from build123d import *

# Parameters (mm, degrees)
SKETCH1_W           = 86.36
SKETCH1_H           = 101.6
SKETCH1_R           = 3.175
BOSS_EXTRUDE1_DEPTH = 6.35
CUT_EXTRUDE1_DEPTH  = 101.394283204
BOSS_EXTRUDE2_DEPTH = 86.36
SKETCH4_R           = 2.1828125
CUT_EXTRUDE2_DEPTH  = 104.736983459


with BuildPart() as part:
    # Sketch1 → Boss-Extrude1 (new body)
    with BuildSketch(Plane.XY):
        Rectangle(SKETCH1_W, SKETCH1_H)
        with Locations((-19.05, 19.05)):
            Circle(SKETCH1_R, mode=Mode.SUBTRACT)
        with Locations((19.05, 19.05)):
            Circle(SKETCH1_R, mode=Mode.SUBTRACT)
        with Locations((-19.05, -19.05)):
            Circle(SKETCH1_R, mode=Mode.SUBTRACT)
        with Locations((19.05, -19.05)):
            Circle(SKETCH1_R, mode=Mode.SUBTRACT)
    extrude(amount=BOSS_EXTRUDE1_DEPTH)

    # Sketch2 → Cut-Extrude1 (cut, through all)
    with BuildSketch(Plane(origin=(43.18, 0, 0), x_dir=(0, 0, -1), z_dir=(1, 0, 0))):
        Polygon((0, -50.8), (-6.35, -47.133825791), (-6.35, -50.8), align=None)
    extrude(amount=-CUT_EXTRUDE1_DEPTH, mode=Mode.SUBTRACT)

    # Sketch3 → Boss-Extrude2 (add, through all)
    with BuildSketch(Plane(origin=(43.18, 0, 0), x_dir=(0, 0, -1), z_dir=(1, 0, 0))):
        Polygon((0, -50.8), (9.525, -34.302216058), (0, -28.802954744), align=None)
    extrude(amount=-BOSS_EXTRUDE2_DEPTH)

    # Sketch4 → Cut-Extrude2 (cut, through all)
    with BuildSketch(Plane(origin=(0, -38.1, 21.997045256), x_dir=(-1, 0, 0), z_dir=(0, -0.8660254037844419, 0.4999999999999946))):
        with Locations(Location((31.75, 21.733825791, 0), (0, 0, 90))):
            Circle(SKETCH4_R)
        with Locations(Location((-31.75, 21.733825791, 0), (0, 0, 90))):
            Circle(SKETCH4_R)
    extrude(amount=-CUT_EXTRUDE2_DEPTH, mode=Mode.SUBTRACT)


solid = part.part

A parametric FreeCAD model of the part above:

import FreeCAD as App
import Part
import Sketcher
from FreeCAD import Vector
Q = App.Units.Quantity


def add_polygon(sketch, points):
    """Adds a closed chain of lines whose ends are joined by coincident constraints."""
    first, n = sketch.GeometryCount, len(points)
    for a, b in zip(points, points[1:] + points[:1]):
        sketch.addGeometry(Part.LineSegment(App.Vector(*a, 0), App.Vector(*b, 0)), False)
    for i in range(n):
        sketch.addConstraint(Sketcher.Constraint("Coincident", first + i, 2, first + (i + 1) % n, 1))

doc = App.newDocument("Part")
params = doc.addObject("Spreadsheet::Sheet", "Params")
for row, (alias, value) in enumerate([
    ("sketch1_diameter", "0.25 in"),
    ("sketch1_height", "4 in"),
    ("sketch1_width", "3.4 in"),
    ("pad1_length", "0.25 in"),
    ("sketch2_height", "0.25 in"),
    ("sketch3_length", "0.75 in"),
    ("pad2_length", "3.4 in"),
    ("sketch4_diameter", "0.171875 in"),
], start=1):
    params.set(f"A{row}", alias)
    params.set(f"B{row}", "=" + value)
    params.setAlias(f"B{row}", alias)

body = doc.addObject("PartDesign::Body", "Body")

# Sketch on XY plane
sketch1 = body.newObject("Sketcher::SketchObject", "Sketch")
sketch1.AttachmentSupport = (doc.getObject("XY_Plane"), [""])
sketch1.MapMode = "FlatFace"
add_polygon(sketch1, [(-43.2, 50.8), (-43.2, -50.8), (43.2, -50.8), (43.2, 50.8)])  # lines 0-3
sketch1.addGeometry(Part.Circle(Vector(-19.1, -19.1, 0), Vector(0, 0, 1), 3.2), False)  # 4
sketch1.addGeometry(Part.Circle(Vector(19.1, -19.1, 0), Vector(0, 0, 1), 3.2), False)  # 5
sketch1.addGeometry(Part.Circle(Vector(-19.1, 19.1, 0), Vector(0, 0, 1), 3.2), False)  # 6
sketch1.addGeometry(Part.Circle(Vector(19.1, 19.1, 0), Vector(0, 0, 1), 3.2), False)  # 7
sketch1.addConstraint([
    Sketcher.Constraint("Vertical", 0),
    Sketcher.Constraint("Horizontal", 1),
    Sketcher.Constraint("Vertical", 2),
    Sketcher.Constraint("Horizontal", 3),
    Sketcher.Constraint("Equal", 4, 5),
    Sketcher.Constraint("Equal", 5, 6),
    Sketcher.Constraint("Equal", 6, 7),
    Sketcher.Constraint("Symmetric", 5, 3, 6, 3, -1, 1),
    Sketcher.Constraint("Symmetric", 4, 3, 7, 3, -1, 1),
    Sketcher.Constraint("Symmetric", 0, 2, 2, 2, -1, 1),
    Sketcher.Constraint("Symmetric", 4, 3, 5, 3, -2),
    Sketcher.Constraint("Diameter", 4, Q("0.25 in")),
    Sketcher.Constraint("DistanceY", 0, 2, 0, 1, Q("4 in")),
    Sketcher.Constraint("DistanceX", 1, 1, 1, 2, Q("3.4 in")),
    Sketcher.Constraint("DistanceX", 4, 3, 5, 3, Q("1.5 in")),
    Sketcher.Constraint("DistanceY", 4, 3, 6, 3, Q("1.5 in")),
])
sketch1.setExpression("Constraints[15]", "Params.sketch1_diameter")
sketch1.setExpression("Constraints[16]", "Params.sketch1_height")
sketch1.setExpression("Constraints[17]", "Params.sketch1_width")
pad1 = body.newObject("PartDesign::Pad", "Pad")
pad1.Profile = sketch1
pad1.setExpression("Length", "Params.pad1_length")

# Sketch on YZ plane
sketch2 = body.newObject("Sketcher::SketchObject", "Sketch001")
sketch2.AttachmentSupport = (doc.getObject("YZ_Plane"), [""])
sketch2.MapMode = "FlatFace"
sketch2.AttachmentOffset = App.Placement(Vector(0, 0, 1.7 * 25.4), App.Rotation())
add_polygon(sketch2, [(-50.8, 0), (-47.1, 6.3), (-50.8, 6.3)])  # lines 0-2
sketch2.addConstraint([
    Sketcher.Constraint("Horizontal", 1),
    Sketcher.Constraint("Vertical", 2),
    Sketcher.Constraint("PointOnObject", 2, 2, -1),
    Sketcher.Constraint("DistanceX", 1, 2, -1, 1, Q("2 in")),
    Sketcher.Constraint("Angle", 0, Q("60 deg")),
    Sketcher.Constraint("DistanceY", 2, 2, 2, 1, Q("0.25 in")),
])
sketch2.setExpression("Constraints[8]", "Params.sketch2_height")
pocket1 = body.newObject("PartDesign::Pocket", "Pocket")
pocket1.Profile = sketch2
pocket1.Type = "ThroughAll"

# Sketch on YZ plane
sketch3 = body.newObject("Sketcher::SketchObject", "Sketch002")
sketch3.AttachmentSupport = (doc.getObject("YZ_Plane"), [""])
sketch3.MapMode = "FlatFace"
sketch3.AttachmentOffset = App.Placement(Vector(0, 0, 1.7 * 25.4), App.Rotation())
add_polygon(sketch3, [(-51, 0), (-34, -10), (-29, 0)])  # lines 0-2
sketch3.addConstraint([
    Sketcher.Constraint("Horizontal", 2),
    Sketcher.Constraint("PointOnObject", 1, 2, -1),
    Sketcher.Constraint("Perpendicular", 0, 1),
    Sketcher.Constraint("DistanceX", 2, 2, -1, 1, Q("2 in")),
    Sketcher.Constraint("Angle", 0, Q("-30 deg")),
    Sketcher.Constraint("Distance", 0, Q("0.75 in")),
])
sketch3.setExpression("Constraints[8]", "Params.sketch3_length")
pad2 = body.newObject("PartDesign::Pad", "Pad001")
pad2.Profile = sketch3
pad2.setExpression("Length", "Params.pad2_length")
pad2.Reversed = True

# Sketch on an angled plane
sketch4 = body.newObject("Sketcher::SketchObject", "Sketch003")
sketch4.Placement = App.Placement(Vector(0, -38.1, 21.997045), App.Rotation(Vector(-1, 0, 0), Vector(0, -0.5, -0.866025404), Vector(0, -0.866025404, 0.5), "ZXY"))
sketch4.addGeometry([
    Part.Circle(Vector(31.8, 21.7, 0), Vector(0, 0, 1), 2.2),
    Part.Circle(Vector(-31.8, 21.7, 0), Vector(0, 0, 1), 2.2),
], False)
sketch4.addConstraint([
    Sketcher.Constraint("Equal", 0, 1),
    Sketcher.Constraint("Symmetric", 0, 3, 1, 3, -2),
    Sketcher.Constraint("Diameter", 0, Q("0.171875 in")),
    Sketcher.Constraint("DistanceX", 1, 3, 0, 3, Q("2.5 in")),
    Sketcher.Constraint("DistanceY", -1, 1, 0, 3, 21.733826),
])
sketch4.setExpression("Constraints[2]", "Params.sketch4_diameter")
pocket2 = body.newObject("PartDesign::Pocket", "Pocket001")
pocket2.Profile = sketch4
pocket2.Type = "ThroughAll"

doc.recompute()
